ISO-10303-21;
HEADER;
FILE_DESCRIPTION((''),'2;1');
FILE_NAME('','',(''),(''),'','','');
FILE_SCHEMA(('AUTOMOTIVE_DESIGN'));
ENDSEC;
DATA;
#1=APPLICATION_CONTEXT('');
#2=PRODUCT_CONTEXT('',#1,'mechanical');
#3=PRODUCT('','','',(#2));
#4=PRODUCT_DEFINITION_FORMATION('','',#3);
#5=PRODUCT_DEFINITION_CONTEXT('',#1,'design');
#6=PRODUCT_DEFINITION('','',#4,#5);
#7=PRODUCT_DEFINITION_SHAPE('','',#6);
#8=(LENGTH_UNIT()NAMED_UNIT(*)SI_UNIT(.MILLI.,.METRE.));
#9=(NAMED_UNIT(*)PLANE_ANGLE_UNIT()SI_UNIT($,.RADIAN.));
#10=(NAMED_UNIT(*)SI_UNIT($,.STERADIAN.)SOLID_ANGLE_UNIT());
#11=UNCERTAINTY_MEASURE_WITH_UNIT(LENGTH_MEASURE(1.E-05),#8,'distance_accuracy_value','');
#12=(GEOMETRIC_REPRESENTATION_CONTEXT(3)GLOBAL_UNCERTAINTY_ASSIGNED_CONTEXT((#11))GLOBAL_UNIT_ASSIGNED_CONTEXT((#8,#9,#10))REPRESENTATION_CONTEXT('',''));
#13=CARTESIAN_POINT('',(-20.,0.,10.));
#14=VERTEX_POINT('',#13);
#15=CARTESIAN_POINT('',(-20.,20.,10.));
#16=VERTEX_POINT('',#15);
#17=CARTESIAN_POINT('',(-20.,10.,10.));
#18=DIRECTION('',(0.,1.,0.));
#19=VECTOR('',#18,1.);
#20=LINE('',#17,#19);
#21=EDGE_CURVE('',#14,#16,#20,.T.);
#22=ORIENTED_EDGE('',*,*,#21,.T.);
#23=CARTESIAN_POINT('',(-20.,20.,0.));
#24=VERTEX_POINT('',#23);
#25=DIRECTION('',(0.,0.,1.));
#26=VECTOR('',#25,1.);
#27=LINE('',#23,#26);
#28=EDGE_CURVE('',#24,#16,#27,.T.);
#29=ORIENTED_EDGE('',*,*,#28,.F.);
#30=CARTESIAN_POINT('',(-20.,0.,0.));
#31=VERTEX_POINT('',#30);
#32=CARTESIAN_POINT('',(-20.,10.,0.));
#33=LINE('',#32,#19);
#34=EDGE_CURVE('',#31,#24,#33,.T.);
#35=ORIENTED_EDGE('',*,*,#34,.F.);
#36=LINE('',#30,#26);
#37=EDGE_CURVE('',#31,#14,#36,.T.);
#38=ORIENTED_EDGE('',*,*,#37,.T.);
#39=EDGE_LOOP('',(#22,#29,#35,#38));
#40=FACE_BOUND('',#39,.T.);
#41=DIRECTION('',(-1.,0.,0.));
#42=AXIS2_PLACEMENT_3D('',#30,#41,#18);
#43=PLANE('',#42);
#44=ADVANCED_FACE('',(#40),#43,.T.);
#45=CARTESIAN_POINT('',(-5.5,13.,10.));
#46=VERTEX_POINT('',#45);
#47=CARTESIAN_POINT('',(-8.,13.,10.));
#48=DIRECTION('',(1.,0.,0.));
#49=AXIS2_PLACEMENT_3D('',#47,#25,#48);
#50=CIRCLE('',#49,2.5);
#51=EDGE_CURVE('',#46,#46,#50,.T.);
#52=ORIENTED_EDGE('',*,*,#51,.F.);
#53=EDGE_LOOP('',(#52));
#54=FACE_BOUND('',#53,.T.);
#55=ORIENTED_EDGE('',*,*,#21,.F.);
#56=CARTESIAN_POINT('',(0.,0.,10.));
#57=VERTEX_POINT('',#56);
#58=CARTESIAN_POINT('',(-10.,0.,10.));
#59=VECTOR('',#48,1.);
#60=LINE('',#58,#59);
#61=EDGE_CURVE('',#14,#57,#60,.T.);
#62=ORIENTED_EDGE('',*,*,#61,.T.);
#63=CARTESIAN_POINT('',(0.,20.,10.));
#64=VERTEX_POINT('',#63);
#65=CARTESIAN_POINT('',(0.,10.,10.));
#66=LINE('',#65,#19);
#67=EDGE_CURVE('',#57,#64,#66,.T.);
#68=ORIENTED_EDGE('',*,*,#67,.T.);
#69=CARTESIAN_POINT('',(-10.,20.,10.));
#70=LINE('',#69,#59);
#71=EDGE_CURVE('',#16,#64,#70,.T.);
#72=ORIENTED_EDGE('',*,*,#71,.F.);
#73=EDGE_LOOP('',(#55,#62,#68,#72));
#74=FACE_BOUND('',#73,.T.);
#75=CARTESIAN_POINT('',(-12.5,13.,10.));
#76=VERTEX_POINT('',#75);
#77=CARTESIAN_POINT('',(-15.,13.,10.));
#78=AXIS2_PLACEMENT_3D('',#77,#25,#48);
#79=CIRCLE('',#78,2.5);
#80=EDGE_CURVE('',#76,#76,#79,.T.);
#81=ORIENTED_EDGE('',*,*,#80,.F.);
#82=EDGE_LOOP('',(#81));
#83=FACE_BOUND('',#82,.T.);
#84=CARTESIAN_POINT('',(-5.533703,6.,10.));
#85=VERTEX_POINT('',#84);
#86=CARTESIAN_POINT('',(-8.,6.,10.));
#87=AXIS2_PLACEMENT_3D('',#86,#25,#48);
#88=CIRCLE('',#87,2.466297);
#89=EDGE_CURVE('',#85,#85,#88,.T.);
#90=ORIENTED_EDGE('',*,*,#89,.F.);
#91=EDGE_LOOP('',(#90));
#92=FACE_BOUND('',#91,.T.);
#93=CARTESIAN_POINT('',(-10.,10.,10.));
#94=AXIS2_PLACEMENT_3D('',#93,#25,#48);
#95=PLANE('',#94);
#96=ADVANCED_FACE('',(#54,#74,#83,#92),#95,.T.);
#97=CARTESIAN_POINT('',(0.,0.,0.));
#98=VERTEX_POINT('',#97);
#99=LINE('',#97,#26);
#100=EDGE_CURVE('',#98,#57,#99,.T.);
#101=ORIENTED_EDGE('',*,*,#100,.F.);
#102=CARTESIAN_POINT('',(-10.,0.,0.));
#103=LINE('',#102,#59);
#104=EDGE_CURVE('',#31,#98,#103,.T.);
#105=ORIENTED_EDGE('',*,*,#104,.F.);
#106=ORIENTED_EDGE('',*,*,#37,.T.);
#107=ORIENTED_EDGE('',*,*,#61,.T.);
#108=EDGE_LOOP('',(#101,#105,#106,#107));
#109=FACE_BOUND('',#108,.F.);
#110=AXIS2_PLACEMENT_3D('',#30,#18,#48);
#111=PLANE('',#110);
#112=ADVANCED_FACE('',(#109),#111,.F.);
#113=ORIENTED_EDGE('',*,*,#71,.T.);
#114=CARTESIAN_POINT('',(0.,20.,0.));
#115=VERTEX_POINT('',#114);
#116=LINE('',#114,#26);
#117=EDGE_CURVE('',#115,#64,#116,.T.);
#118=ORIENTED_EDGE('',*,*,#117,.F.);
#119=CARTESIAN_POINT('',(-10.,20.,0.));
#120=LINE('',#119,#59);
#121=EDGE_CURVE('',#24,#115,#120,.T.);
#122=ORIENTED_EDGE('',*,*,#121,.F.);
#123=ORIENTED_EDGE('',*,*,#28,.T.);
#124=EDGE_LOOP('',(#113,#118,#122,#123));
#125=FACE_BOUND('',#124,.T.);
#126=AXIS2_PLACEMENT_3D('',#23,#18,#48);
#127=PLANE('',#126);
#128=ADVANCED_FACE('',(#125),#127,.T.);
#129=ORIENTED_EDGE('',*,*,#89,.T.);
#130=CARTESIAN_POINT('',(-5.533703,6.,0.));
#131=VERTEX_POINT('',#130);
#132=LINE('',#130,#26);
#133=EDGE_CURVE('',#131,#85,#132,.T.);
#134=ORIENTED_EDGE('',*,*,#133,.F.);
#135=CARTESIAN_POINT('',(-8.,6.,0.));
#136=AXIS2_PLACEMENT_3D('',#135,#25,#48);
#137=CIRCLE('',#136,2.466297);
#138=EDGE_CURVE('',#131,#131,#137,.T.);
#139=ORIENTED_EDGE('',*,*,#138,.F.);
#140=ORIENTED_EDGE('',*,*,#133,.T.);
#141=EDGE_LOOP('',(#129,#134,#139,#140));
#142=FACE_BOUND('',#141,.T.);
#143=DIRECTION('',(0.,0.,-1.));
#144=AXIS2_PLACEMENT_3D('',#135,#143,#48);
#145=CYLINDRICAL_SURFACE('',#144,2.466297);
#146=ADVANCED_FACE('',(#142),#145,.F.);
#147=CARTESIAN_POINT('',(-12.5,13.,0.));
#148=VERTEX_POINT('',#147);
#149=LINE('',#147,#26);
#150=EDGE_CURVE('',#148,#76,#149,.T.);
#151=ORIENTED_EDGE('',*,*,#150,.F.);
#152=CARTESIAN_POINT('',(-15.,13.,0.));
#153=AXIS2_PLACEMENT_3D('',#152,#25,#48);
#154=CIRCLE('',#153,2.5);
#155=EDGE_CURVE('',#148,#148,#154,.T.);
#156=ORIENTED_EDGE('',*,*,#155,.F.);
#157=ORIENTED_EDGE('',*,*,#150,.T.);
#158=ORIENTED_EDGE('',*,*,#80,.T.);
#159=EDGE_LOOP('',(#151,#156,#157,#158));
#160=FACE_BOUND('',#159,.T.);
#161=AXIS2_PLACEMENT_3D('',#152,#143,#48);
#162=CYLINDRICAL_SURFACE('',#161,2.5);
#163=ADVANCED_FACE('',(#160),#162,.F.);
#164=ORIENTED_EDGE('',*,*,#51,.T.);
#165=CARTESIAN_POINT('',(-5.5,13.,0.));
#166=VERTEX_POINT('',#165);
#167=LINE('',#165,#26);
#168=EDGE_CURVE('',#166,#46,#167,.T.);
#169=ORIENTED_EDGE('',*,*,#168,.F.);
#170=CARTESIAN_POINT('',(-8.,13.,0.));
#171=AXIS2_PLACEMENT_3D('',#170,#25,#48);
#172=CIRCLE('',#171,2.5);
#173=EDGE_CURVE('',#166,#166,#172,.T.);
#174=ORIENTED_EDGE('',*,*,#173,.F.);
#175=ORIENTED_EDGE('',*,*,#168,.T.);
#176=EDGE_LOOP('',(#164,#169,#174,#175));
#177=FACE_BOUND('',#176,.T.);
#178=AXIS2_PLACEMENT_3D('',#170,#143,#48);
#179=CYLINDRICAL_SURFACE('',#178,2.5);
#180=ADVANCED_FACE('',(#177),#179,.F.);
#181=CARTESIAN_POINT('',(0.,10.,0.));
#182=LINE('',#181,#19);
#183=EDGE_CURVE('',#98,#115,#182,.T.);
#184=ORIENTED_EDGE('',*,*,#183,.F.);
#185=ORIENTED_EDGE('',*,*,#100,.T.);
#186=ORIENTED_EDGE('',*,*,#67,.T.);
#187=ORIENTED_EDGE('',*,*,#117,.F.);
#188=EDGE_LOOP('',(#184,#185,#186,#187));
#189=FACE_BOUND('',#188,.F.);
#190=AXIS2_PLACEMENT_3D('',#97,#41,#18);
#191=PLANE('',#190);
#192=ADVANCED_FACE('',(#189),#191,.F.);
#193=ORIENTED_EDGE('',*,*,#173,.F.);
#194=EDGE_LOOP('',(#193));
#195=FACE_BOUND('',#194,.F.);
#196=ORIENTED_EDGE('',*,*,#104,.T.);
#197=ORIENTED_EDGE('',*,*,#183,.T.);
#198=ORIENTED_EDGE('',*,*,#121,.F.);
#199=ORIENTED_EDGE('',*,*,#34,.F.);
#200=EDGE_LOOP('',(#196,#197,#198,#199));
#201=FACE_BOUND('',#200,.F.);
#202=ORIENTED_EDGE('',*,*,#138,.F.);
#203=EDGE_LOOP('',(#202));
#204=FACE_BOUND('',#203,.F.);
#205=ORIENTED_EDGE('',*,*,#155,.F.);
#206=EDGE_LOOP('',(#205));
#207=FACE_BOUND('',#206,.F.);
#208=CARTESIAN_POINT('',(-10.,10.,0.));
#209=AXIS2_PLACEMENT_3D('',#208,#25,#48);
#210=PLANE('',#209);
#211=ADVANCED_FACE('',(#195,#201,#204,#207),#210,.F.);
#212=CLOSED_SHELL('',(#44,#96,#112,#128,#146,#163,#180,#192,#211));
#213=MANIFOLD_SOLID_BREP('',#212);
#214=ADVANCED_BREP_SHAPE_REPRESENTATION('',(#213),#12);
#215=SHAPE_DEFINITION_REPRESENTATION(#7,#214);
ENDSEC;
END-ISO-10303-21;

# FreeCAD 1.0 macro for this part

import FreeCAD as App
import Part
import Sketcher
from FreeCAD import Vector
Q = App.Units.Quantity

doc = App.newDocument("Part")
body = doc.addObject("PartDesign::Body", "Body")

# Sketch on XY plane
sketch1 = body.newObject("Sketcher::SketchObject", "Sketch")
sketch1.AttachmentSupport = (doc.getObject("XY_Plane"), [""])
sketch1.MapMode = "FlatFace"
sketch1.addGeometry([
    Part.LineSegment(Vector(-20, 20, 0), Vector(-20, 0, 0)),  # 0
    Part.LineSegment(Vector(-20, 0, 0), Vector(0, 0, 0)),  # 1
    Part.LineSegment(Vector(0, 0, 0), Vector(0, 20, 0)),  # 2
    Part.LineSegment(Vector(0, 20, 0), Vector(-20, 20, 0)),  # 3
    Part.Circle(Vector(-8, 6, 0), Vector(0, 0, 1), 2.466297),  # 4
    Part.Circle(Vector(-15, 13, 0), Vector(0, 0, 1), 2.5),  # 5
    Part.Circle(Vector(-8, 13, 0), Vector(0, 0, 1), 2.5),  # 6
], False)
sketch1.addConstraint([
    Sketcher.Constraint("Coincident", 0, 2, 1, 1),
    Sketcher.Constraint("Coincident", 1, 2, 2, 1),
    Sketcher.Constraint("Coincident", 2, 2, 3, 1),
    Sketcher.Constraint("Coincident", 3, 2, 0, 1),
    Sketcher.Constraint("Vertical", 0),
    Sketcher.Constraint("Horizontal", 1),
    Sketcher.Constraint("Vertical", 2),
    Sketcher.Constraint("Horizontal", 3),
    Sketcher.Constraint("Coincident", 1, 2, -1, 1),
    Sketcher.Constraint("Equal", 5, 6),
    Sketcher.Constraint("Horizontal", 5, 3, 6, 3),
    Sketcher.Constraint("Vertical", 4, 3, 6, 3),
    Sketcher.Constraint("Equal", 3, 0),
    Sketcher.Constraint("Diameter", 5, Q("5 mm")),
    Sketcher.Constraint("DistanceX", 1, 1, 1, 2, Q("20 mm")),
    Sketcher.Constraint("DistanceX", 4, 3, -1, 1, Q("8 mm")),
    Sketcher.Constraint("DistanceY", -1, 1, 4, 3, Q("6 mm")),
    Sketcher.Constraint("DistanceX", 5, 3, -1, 1, Q("15 mm")),
    Sketcher.Constraint("DistanceY", -1, 1, 5, 3, Q("13 mm")),
    Sketcher.Constraint("Diameter", 4, Q("4.932594 mm")),
])
pad1 = body.newObject("PartDesign::Pad", "Pad")
pad1.Profile = sketch1
pad1.Length = 10

doc.recompute()
